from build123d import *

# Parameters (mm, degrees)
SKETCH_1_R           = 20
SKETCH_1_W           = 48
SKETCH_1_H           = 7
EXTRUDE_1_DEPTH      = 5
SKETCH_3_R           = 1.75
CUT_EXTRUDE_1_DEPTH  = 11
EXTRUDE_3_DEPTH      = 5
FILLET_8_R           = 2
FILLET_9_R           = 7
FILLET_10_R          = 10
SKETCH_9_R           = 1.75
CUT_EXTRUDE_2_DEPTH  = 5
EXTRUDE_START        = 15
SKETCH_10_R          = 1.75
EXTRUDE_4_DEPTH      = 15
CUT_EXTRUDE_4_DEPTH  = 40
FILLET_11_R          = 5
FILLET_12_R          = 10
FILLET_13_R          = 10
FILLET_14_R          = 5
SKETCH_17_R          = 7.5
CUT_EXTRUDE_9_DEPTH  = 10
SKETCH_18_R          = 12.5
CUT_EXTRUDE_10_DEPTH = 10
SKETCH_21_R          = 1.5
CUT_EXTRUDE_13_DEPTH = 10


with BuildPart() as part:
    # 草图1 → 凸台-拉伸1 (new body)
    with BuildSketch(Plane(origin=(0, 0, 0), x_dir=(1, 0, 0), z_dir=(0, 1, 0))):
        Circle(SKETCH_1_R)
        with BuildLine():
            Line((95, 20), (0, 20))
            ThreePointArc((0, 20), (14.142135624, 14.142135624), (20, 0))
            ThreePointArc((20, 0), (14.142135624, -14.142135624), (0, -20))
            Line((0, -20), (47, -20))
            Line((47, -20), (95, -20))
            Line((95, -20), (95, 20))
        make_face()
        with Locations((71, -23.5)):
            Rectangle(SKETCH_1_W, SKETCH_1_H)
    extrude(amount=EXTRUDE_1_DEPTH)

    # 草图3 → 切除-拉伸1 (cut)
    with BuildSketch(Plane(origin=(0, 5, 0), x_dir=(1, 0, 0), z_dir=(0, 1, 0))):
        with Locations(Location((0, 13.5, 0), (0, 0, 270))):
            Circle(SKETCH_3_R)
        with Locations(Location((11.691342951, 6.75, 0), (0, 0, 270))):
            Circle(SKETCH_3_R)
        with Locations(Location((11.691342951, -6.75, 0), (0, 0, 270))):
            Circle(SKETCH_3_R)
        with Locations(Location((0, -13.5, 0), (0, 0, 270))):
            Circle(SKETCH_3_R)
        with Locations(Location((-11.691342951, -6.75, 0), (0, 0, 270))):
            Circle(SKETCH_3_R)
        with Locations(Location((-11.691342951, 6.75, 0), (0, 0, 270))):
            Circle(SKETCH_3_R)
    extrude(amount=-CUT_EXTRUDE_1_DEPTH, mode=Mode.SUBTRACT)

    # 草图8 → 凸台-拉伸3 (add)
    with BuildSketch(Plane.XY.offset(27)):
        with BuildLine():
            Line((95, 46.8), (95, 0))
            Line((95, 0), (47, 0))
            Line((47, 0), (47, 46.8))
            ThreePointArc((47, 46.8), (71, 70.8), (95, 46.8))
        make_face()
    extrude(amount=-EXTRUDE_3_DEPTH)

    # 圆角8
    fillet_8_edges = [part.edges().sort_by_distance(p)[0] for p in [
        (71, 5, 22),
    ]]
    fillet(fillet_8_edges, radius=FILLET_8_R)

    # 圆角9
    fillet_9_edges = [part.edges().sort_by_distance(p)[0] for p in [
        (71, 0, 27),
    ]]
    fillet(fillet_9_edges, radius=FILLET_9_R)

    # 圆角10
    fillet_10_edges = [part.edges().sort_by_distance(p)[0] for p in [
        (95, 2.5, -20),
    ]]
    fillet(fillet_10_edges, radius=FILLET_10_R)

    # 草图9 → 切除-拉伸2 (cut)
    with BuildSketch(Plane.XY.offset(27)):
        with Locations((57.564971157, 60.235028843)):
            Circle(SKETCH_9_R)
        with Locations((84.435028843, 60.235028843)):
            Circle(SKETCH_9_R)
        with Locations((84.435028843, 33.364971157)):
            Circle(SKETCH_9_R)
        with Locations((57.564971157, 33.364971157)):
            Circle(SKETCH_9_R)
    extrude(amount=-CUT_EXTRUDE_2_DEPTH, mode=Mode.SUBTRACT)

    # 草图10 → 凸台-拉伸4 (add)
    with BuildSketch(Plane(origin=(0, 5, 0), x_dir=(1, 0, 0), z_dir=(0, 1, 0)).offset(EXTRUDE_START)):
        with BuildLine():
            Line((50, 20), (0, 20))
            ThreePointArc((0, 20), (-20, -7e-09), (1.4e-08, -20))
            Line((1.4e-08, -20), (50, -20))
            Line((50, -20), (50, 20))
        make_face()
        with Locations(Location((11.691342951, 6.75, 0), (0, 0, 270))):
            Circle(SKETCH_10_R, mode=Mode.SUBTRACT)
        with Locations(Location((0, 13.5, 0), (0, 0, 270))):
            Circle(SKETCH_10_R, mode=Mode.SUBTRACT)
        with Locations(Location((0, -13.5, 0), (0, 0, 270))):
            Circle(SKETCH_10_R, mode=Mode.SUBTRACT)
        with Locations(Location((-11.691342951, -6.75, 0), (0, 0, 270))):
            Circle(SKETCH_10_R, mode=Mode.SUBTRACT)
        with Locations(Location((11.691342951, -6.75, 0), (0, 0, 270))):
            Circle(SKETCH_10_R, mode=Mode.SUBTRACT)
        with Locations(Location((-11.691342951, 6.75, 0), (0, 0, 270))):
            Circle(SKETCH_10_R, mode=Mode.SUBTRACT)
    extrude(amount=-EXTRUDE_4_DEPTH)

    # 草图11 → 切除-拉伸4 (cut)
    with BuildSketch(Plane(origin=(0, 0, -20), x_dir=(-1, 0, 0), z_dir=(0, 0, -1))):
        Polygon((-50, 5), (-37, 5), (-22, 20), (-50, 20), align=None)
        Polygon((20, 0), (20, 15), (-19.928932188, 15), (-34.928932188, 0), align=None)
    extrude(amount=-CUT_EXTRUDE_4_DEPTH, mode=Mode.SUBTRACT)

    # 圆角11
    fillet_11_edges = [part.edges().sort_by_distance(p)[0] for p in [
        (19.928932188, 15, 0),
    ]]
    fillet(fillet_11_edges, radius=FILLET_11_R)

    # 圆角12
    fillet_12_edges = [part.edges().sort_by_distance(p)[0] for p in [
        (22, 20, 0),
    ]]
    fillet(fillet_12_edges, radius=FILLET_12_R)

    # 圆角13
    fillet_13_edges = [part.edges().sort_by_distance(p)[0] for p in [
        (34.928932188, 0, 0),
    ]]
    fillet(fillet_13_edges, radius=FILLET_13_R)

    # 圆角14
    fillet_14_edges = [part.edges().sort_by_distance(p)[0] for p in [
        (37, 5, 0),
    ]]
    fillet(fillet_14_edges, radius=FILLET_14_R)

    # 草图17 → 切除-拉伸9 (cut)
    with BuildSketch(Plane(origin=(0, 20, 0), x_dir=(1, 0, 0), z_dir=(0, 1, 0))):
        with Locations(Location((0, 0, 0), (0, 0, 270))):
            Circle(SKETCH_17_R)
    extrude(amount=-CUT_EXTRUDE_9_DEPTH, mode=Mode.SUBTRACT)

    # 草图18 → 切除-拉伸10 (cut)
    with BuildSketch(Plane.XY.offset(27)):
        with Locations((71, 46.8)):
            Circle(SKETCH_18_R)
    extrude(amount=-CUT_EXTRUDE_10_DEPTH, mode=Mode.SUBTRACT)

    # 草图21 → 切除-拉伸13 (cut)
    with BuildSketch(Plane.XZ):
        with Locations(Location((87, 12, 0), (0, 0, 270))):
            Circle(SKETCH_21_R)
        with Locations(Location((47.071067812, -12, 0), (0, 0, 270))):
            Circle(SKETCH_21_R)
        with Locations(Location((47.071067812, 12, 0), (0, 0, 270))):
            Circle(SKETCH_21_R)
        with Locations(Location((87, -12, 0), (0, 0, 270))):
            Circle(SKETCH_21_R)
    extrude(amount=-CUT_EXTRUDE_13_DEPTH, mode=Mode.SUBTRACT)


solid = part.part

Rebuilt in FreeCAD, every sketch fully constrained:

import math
import FreeCAD as App
import Part
import Sketcher

V = App.Vector
Q = App.Units.Quantity


def edges_at(feature, points):
    """Names of the edges that pass closest to the given points."""
    edges = feature.Shape.Edges
    near = lambda p: min(range(len(edges)), key=lambda i: edges[i].distToShape(Part.Vertex(*p))[0])
    return sorted({f"Edge{near(p) + 1}" for p in points})


def add_polygon(sketch, points):
    """Adds a closed chain of lines whose ends are joined by coincident constraints."""
    first, n = sketch.GeometryCount, len(points)
    for a, b in zip(points, points[1:] + points[:1]):
        sketch.addGeometry(Part.LineSegment(App.Vector(*a, 0), App.Vector(*b, 0)), False)
    for i in range(n):
        sketch.addConstraint(Sketcher.Constraint("Coincident", first + i, 2, first + (i + 1) % n, 1))

doc = App.newDocument("Part")
body = doc.addObject("PartDesign::Body", "Body")

# Sketch on XZ plane
sketch1 = doc.addObject("Sketcher::SketchObject", "Sketch")
body.addObject(sketch1)
sketch1.AttachmentSupport = (doc.XZ_Plane, [""])
sketch1.MapMode = "FlatFace"
sketch1.addGeometry(Part.ArcOfCircle(Part.Circle(V(0, 0, 0), V(0, 0, 1), 20), math.radians(90), math.radians(270)), False)
sketch1.addGeometry(Part.LineSegment(V(0, 20, 0), V(47, 20, 0)), False)
sketch1.addGeometry(Part.LineSegment(V(47, 20, 0), V(47, 27, 0)), False)
sketch1.addGeometry(Part.LineSegment(V(47, 27, 0), V(95, 27, 0)), False)
sketch1.addGeometry(Part.LineSegment(V(95, 27, 0), V(95, -20, 0)), False)
sketch1.addGeometry(Part.LineSegment(V(95, -20, 0), V(0, -20, 0)), False)
sketch1.addConstraint(Sketcher.Constraint("Tangent", 0, 1, 1, 1))
sketch1.addConstraint(Sketcher.Constraint("Coincident", 1, 2, 2, 1))
sketch1.addConstraint(Sketcher.Constraint("Coincident", 2, 2, 3, 1))
sketch1.addConstraint(Sketcher.Constraint("Coincident", 3, 2, 4, 1))
sketch1.addConstraint(Sketcher.Constraint("Coincident", 4, 2, 5, 1))
sketch1.addConstraint(Sketcher.Constraint("Tangent", 5, 2, 0, 2))
sketch1.addConstraint(Sketcher.Constraint("Horizontal", 1))
sketch1.addConstraint(Sketcher.Constraint("Vertical", 2))
sketch1.addConstraint(Sketcher.Constraint("Horizontal", 3))
sketch1.addConstraint(Sketcher.Constraint("Vertical", 4))
sketch1.addConstraint(Sketcher.Constraint("Horizontal", 5))
sketch1.addConstraint(Sketcher.Constraint("Coincident", 0, 3, -1, 1))
sketch1.addConstraint(Sketcher.Constraint("Equal", 1, 4))
sketch1.addConstraint(Sketcher.Constraint("Radius", 0, Q("20 mm")))
sketch1.addConstraint(Sketcher.Constraint("DistanceX", 1, 1, 1, 2, Q("47 mm")))
sketch1.addConstraint(Sketcher.Constraint("DistanceX", 3, 1, 3, 2, Q("48 mm")))
pad1 = doc.addObject("PartDesign::Pad", "Pad")
body.addObject(pad1)
pad1.Profile = sketch1
pad1.Length = 5
pad1.Reversed = True

# Sketch on XZ plane
sketch2 = doc.addObject("Sketcher::SketchObject", "Sketch001")
body.addObject(sketch2)
sketch2.AttachmentSupport = (doc.XZ_Plane, [""])
sketch2.MapMode = "FlatFace"
sketch2.AttachmentOffset = App.Placement(V(0, 0, -5), App.Rotation())
sketch2.addGeometry(Part.Circle(V(0, -13.5, 0), V(0, 0, 1), 1.8), False)
sketch2.addGeometry(Part.Circle(V(11.7, -6.8, 0), V(0, 0, 1), 1.8), False)
sketch2.addGeometry(Part.Circle(V(11.7, 6.8, 0), V(0, 0, 1), 1.8), False)
sketch2.addGeometry(Part.Circle(V(0, 13.5, 0), V(0, 0, 1), 1.8), False)
sketch2.addGeometry(Part.Circle(V(-11.7, 6.8, 0), V(0, 0, 1), 1.8), False)
sketch2.addGeometry(Part.Circle(V(-11.7, -6.8, 0), V(0, 0, 1), 1.8), False)
sketch2.addConstraint(Sketcher.Constraint("Equal", 0, 1))
sketch2.addConstraint(Sketcher.Constraint("Equal", 1, 2))
sketch2.addConstraint(Sketcher.Constraint("Equal", 2, 3))
sketch2.addConstraint(Sketcher.Constraint("Equal", 3, 4))
sketch2.addConstraint(Sketcher.Constraint("Equal", 4, 5))
sketch2.addConstraint(Sketcher.Constraint("Symmetric", 0, 3, 3, 3, -1, 1))
sketch2.addConstraint(Sketcher.Constraint("Symmetric", 1, 3, 4, 3, -1, 1))
sketch2.addConstraint(Sketcher.Constraint("Symmetric", 2, 3, 5, 3, -1, 1))
sketch2.addConstraint(Sketcher.Constraint("Symmetric", 2, 3, 4, 3, -2))
sketch2.addConstraint(Sketcher.Constraint("PointOnObject", 0, 3, -2))
sketch2.addConstraint(Sketcher.Constraint("Diameter", 0, Q("3.5 mm")))
sketch2.addConstraint(Sketcher.Constraint("DistanceY", 0, 3, 3, 3, Q("27 mm")))
sketch2.addConstraint(Sketcher.Constraint("DistanceY", 1, 3, 2, 3, Q("13.5 mm")))
sketch2.addConstraint(Sketcher.Constraint("DistanceX", -1, 1, 1, 3, Q("11.691343 mm")))
pocket1 = doc.addObject("PartDesign::Pocket", "Pocket")
body.addObject(pocket1)
pocket1.Profile = sketch2
pocket1.Length = 11
pocket1.Reversed = True

# Sketch on XY plane
sketch3 = doc.addObject("Sketcher::SketchObject", "Sketch002")
body.addObject(sketch3)
sketch3.AttachmentSupport = (doc.XY_Plane, [""])
sketch3.MapMode = "FlatFace"
sketch3.AttachmentOffset = App.Placement(V(0, 0, 27), App.Rotation())
sketch3.addGeometry(Part.LineSegment(V(95, 0, 0), V(95, 47, 0)), False)
sketch3.addGeometry(Part.ArcOfCircle(Part.Circle(V(71, 47, 0), V(0, 0, 1), 24), math.radians(0), math.radians(180)), False)
sketch3.addGeometry(Part.LineSegment(V(47, 47, 0), V(47, 0, 0)), False)
sketch3.addGeometry(Part.LineSegment(V(47, 0, 0), V(95, 0, 0)), False)
sketch3.addConstraint(Sketcher.Constraint("Tangent", 0, 2, 1, 1))
sketch3.addConstraint(Sketcher.Constraint("Tangent", 1, 2, 2, 1))
sketch3.addConstraint(Sketcher.Constraint("Coincident", 2, 2, 3, 1))
sketch3.addConstraint(Sketcher.Constraint("Coincident", 3, 2, 0, 1))
sketch3.addConstraint(Sketcher.Constraint("Vertical", 0))
sketch3.addConstraint(Sketcher.Constraint("Vertical", 2))
sketch3.addConstraint(Sketcher.Constraint("Horizontal", 3))
sketch3.addConstraint(Sketcher.Constraint("PointOnObject", 2, 2, -1))
sketch3.addConstraint(Sketcher.Constraint("Radius", 1, Q("24 mm")))
sketch3.addConstraint(Sketcher.Constraint("DistanceY", 0, 1, 0, 2, Q("46.8 mm")))
sketch3.addConstraint(Sketcher.Constraint("DistanceX", -1, 1, 1, 3, Q("71 mm")))
pad2 = doc.addObject("PartDesign::Pad", "Pad001")
body.addObject(pad2)
pad2.Profile = sketch3
pad2.Length = 5
pad2.Reversed = True
doc.recompute()

fillet = doc.addObject("PartDesign::Fillet", "Fillet")
body.addObject(fillet)
fillet.Base = (pad2, edges_at(pad2, [(71, 5, 22)]))
fillet.Radius = 2
doc.recompute()

fillet2 = doc.addObject("PartDesign::Fillet", "Fillet001")
body.addObject(fillet2)
fillet2.Base = (fillet, edges_at(fillet, [(71, 0, 27)]))
fillet2.Radius = 7
doc.recompute()

fillet3 = doc.addObject("PartDesign::Fillet", "Fillet002")
body.addObject(fillet3)
fillet3.Base = (fillet2, edges_at(fillet2, [(95, 2.5, -20)]))
fillet3.Radius = 10

# Sketch on XY plane
sketch4 = doc.addObject("Sketcher::SketchObject", "Sketch003")
body.addObject(sketch4)
sketch4.AttachmentSupport = (doc.XY_Plane, [""])
sketch4.MapMode = "FlatFace"
sketch4.AttachmentOffset = App.Placement(V(0, 0, 27), App.Rotation())
sketch4.addGeometry(Part.Circle(V(57.6, 60.2, 0), V(0, 0, 1), 1.8), False)
sketch4.addGeometry(Part.Circle(V(84.4, 60.2, 0), V(0, 0, 1), 1.8), False)
sketch4.addGeometry(Part.Circle(V(84.4, 33.4, 0), V(0, 0, 1), 1.8), False)
sketch4.addGeometry(Part.Circle(V(57.6, 33.4, 0), V(0, 0, 1), 1.8), False)
sketch4.addConstraint(Sketcher.Constraint("Equal", 0, 1))
sketch4.addConstraint(Sketcher.Constraint("Equal", 1, 2))
sketch4.addConstraint(Sketcher.Constraint("Equal", 2, 3))
sketch4.addConstraint(Sketcher.Constraint("Horizontal", 0, 3, 1, 3))
sketch4.addConstraint(Sketcher.Constraint("Horizontal", 2, 3, 3, 3))
sketch4.addConstraint(Sketcher.Constraint("Vertical", 1, 3, 2, 3))
sketch4.addConstraint(Sketcher.Constraint("Vertical", 0, 3, 3, 3))
sketch4.addConstraint(Sketcher.Constraint("Diameter", 0, Q("3.5 mm")))
sketch4.addConstraint(Sketcher.Constraint("DistanceX", -1, 1, 0, 3, Q("57.564971 mm")))
sketch4.addConstraint(Sketcher.Constraint("DistanceY", -1, 1, 0, 3, Q("60.235029 mm")))
sketch4.addConstraint(Sketcher.Constraint("DistanceX", -1, 1, 1, 3, Q("84.435029 mm")))
sketch4.addConstraint(Sketcher.Constraint("DistanceY", -1, 1, 2, 3, Q("33.364971 mm")))
pocket2 = doc.addObject("PartDesign::Pocket", "Pocket001")
body.addObject(pocket2)
pocket2.Profile = sketch4
pocket2.Length = 5

# Sketch on XZ plane
sketch5 = doc.addObject("Sketcher::SketchObject", "Sketch004")
body.addObject(sketch5)
sketch5.AttachmentSupport = (doc.XZ_Plane, [""])
sketch5.MapMode = "FlatFace"
sketch5.AttachmentOffset = App.Placement(V(0, 0, -20), App.Rotation())
sketch5.addGeometry(Part.LineSegment(V(50, -20, 0), V(0, -20, 0)), False)
sketch5.addGeometry(Part.ArcOfCircle(Part.Circle(V(0, 0, 0), V(0, 0, 1), 20), math.radians(90), math.radians(270)), False)
sketch5.addGeometry(Part.LineSegment(V(0, 20, 0), V(50, 20, 0)), False)
sketch5.addGeometry(Part.LineSegment(V(50, 20, 0), V(50, -20, 0)), False)
sketch5.addGeometry(Part.Circle(V(-11.7, 6.8, 0), V(0, 0, 1), 1.8), False)
sketch5.addGeometry(Part.Circle(V(0, 13.5, 0), V(0, 0, 1), 1.8), False)
sketch5.addGeometry(Part.Circle(V(11.7, 6.8, 0), V(0, 0, 1), 1.8), False)
sketch5.addGeometry(Part.Circle(V(-11.7, -6.8, 0), V(0, 0, 1), 1.8), False)
sketch5.addGeometry(Part.Circle(V(11.7, -6.8, 0), V(0, 0, 1), 1.8), False)
sketch5.addGeometry(Part.Circle(V(0, -13.5, 0), V(0, 0, 1), 1.8), False)
sketch5.addConstraint(Sketcher.Constraint("Tangent", 0, 2, 1, 2))
sketch5.addConstraint(Sketcher.Constraint("Tangent", 1, 1, 2, 1))
sketch5.addConstraint(Sketcher.Constraint("Coincident", 2, 2, 3, 1))
sketch5.addConstraint(Sketcher.Constraint("Coincident", 3, 2, 0, 1))
sketch5.addConstraint(Sketcher.Constraint("Horizontal", 0))
sketch5.addConstraint(Sketcher.Constraint("Horizontal", 2))
sketch5.addConstraint(Sketcher.Constraint("Vertical", 3))
sketch5.addConstraint(Sketcher.Constraint("Coincident", 1, 3, -1, 1))
sketch5.addConstraint(Sketcher.Constraint("Equal", 4, 5))
sketch5.addConstraint(Sketcher.Constraint("Equal", 5, 6))
sketch5.addConstraint(Sketcher.Constraint("Equal", 6, 7))
sketch5.addConstraint(Sketcher.Constraint("Equal", 7, 8))
sketch5.addConstraint(Sketcher.Constraint("Equal", 8, 9))
sketch5.addConstraint(Sketcher.Constraint("Symmetric", 6, 3, 7, 3, -1, 1))
sketch5.addConstraint(Sketcher.Constraint("Symmetric", 4, 3, 8, 3, -1, 1))
sketch5.addConstraint(Sketcher.Constraint("Symmetric", 5, 3, 9, 3, -1, 1))
sketch5.addConstraint(Sketcher.Constraint("Symmetric", 4, 3, 6, 3, -2))
sketch5.addConstraint(Sketcher.Constraint("PointOnObject", 5, 3, -2))
sketch5.addConstraint(Sketcher.Constraint("Radius", 1, Q("20 mm")))
sketch5.addConstraint(Sketcher.Constraint("Diameter", 4, Q("3.5 mm")))
sketch5.addConstraint(Sketcher.Constraint("DistanceX", 0, 2, 0, 1, Q("50 mm")))
sketch5.addConstraint(Sketcher.Constraint("DistanceY", -1, 1, 5, 3, Q("13.5 mm")))
sketch5.addConstraint(Sketcher.Constraint("DistanceY", 7, 3, 4, 3, Q("13.5 mm")))
sketch5.addConstraint(Sketcher.Constraint("DistanceX", 4, 3, -1, 1, Q("11.691343 mm")))
pad3 = doc.addObject("PartDesign::Pad", "Pad002")
body.addObject(pad3)
pad3.Profile = sketch5
pad3.Length = 15

# Sketch on XY plane
sketch6 = doc.addObject("Sketcher::SketchObject", "Sketch005")
body.addObject(sketch6)
sketch6.AttachmentSupport = (doc.XY_Plane, [""])
sketch6.MapMode = "FlatFace"
sketch6.AttachmentOffset = App.Placement(V(0, 0, -20), App.Rotation())
add_polygon(sketch6, [(50, 5), (37, 5), (22, 20), (50, 20)])  # lines 0-3
add_polygon(sketch6, [(-20, 0), (-20, 15), (20, 15), (35, 0)])  # lines 4-7
sketch6.addConstraint(Sketcher.Constraint("Horizontal", 0))
sketch6.addConstraint(Sketcher.Constraint("Horizontal", 2))
sketch6.addConstraint(Sketcher.Constraint("Vertical", 3))
sketch6.addConstraint(Sketcher.Constraint("Vertical", 4))
sketch6.addConstraint(Sketcher.Constraint("Horizontal", 5))
sketch6.addConstraint(Sketcher.Constraint("Horizontal", 7))
sketch6.addConstraint(Sketcher.Constraint("PointOnObject", 6, 2, -1))
sketch6.addConstraint(Sketcher.Constraint("Parallel", 1, 6))
sketch6.addConstraint(Sketcher.Constraint("Equal", 3, 4))
sketch6.addConstraint(Sketcher.Constraint("DistanceX", 0, 2, 0, 1, Q("13 mm")))
sketch6.addConstraint(Sketcher.Constraint("DistanceX", 2, 1, 2, 2, Q("28 mm")))
sketch6.addConstraint(Sketcher.Constraint("DistanceY", 3, 2, 3, 1, Q("15 mm")))
sketch6.addConstraint(Sketcher.Constraint("DistanceX", -1, 1, 0, 2, Q("37 mm")))
sketch6.addConstraint(Sketcher.Constraint("DistanceY", -1, 1, 0, 2, Q("5 mm")))
sketch6.addConstraint(Sketcher.Constraint("DistanceX", 4, 2, -1, 1, Q("20 mm")))
sketch6.addConstraint(Sketcher.Constraint("DistanceX", 5, 1, 5, 2, Q("39.928932 mm")))
pocket3 = doc.addObject("PartDesign::Pocket", "Pocket002")
body.addObject(pocket3)
pocket3.Profile = sketch6
pocket3.Length = 40
pocket3.Reversed = True
doc.recompute()

fillet4 = doc.addObject("PartDesign::Fillet", "Fillet003")
body.addObject(fillet4)
fillet4.Base = (pocket3, edges_at(pocket3, [(19.929, 15, 0)]))
fillet4.Radius = 5
doc.recompute()

fillet5 = doc.addObject("PartDesign::Fillet", "Fillet004")
body.addObject(fillet5)
fillet5.Base = (fillet4, edges_at(fillet4, [(22, 20, 0)]))
fillet5.Radius = 10
doc.recompute()

fillet6 = doc.addObject("PartDesign::Fillet", "Fillet005")
body.addObject(fillet6)
fillet6.Base = (fillet5, edges_at(fillet5, [(34.929, 0, 0)]))
fillet6.Radius = 10
doc.recompute()

fillet7 = doc.addObject("PartDesign::Fillet", "Fillet006")
body.addObject(fillet7)
fillet7.Base = (fillet6, edges_at(fillet6, [(37, 5, 0)]))
fillet7.Radius = 5

# Sketch on XZ plane
sketch7 = doc.addObject("Sketcher::SketchObject", "Sketch006")
body.addObject(sketch7)
sketch7.AttachmentSupport = (doc.XZ_Plane, [""])
sketch7.MapMode = "FlatFace"
sketch7.AttachmentOffset = App.Placement(V(0, 0, -20), App.Rotation())
sketch7.addGeometry(Part.Circle(V(0, 0, 0), V(0, 0, 1), 8), False)
sketch7.addConstraint(Sketcher.Constraint("Coincident", 0, 3, -1, 1))
sketch7.addConstraint(Sketcher.Constraint("Diameter", 0, Q("15 mm")))
pocket4 = doc.addObject("PartDesign::Pocket", "Pocket003")
body.addObject(pocket4)
pocket4.Profile = sketch7
pocket4.Length = 10
pocket4.Reversed = True

# Sketch on XY plane
sketch8 = doc.addObject("Sketcher::SketchObject", "Sketch007")
body.addObject(sketch8)
sketch8.AttachmentSupport = (doc.XY_Plane, [""])
sketch8.MapMode = "FlatFace"
sketch8.AttachmentOffset = App.Placement(V(0, 0, 27), App.Rotation())
sketch8.addGeometry(Part.Circle(V(71, 47, 0), V(0, 0, 1), 12), False)
sketch8.addConstraint(Sketcher.Constraint("Diameter", 0, Q("25 mm")))
sketch8.addConstraint(Sketcher.Constraint("DistanceX", -1, 1, 0, 3, Q("71 mm")))
sketch8.addConstraint(Sketcher.Constraint("DistanceY", -1, 1, 0, 3, Q("46.8 mm")))
pocket5 = doc.addObject("PartDesign::Pocket", "Pocket004")
body.addObject(pocket5)
pocket5.Profile = sketch8
pocket5.Length = 10

# Sketch on XZ plane
sketch9 = doc.addObject("Sketcher::SketchObject", "Sketch008")
body.addObject(sketch9)
sketch9.AttachmentSupport = (doc.XZ_Plane, [""])
sketch9.MapMode = "FlatFace"
sketch9.addGeometry(Part.Circle(V(87, 12, 0), V(0, 0, 1), 1.5), False)
sketch9.addGeometry(Part.Circle(V(47.1, -12, 0), V(0, 0, 1), 1.5), False)
sketch9.addGeometry(Part.Circle(V(47.1, 12, 0), V(0, 0, 1), 1.5), False)
sketch9.addGeometry(Part.Circle(V(87, -12, 0), V(0, 0, 1), 1.5), False)
sketch9.addConstraint(Sketcher.Constraint("Equal", 0, 1))
sketch9.addConstraint(Sketcher.Constraint("Equal", 1, 2))
sketch9.addConstraint(Sketcher.Constraint("Equal", 2, 3))
sketch9.addConstraint(Sketcher.Constraint("Symmetric", 1, 3, 2, 3, -1))
sketch9.addConstraint(Sketcher.Constraint("Symmetric", 0, 3, 3, 3, -1))
sketch9.addConstraint(Sketcher.Constraint("Horizontal", 0, 3, 2, 3))
sketch9.addConstraint(Sketcher.Constraint("Diameter", 0, Q("3 mm")))
sketch9.addConstraint(Sketcher.Constraint("DistanceX", -1, 1, 0, 3, Q("87 mm")))
sketch9.addConstraint(Sketcher.Constraint("DistanceY", -1, 1, 0, 3, Q("12 mm")))
sketch9.addConstraint(Sketcher.Constraint("DistanceX", -1, 1, 1, 3, Q("47.071068 mm")))
pocket6 = doc.addObject("PartDesign::Pocket", "Pocket005")
body.addObject(pocket6)
pocket6.Profile = sketch9
pocket6.Length = 10

doc.recompute()
